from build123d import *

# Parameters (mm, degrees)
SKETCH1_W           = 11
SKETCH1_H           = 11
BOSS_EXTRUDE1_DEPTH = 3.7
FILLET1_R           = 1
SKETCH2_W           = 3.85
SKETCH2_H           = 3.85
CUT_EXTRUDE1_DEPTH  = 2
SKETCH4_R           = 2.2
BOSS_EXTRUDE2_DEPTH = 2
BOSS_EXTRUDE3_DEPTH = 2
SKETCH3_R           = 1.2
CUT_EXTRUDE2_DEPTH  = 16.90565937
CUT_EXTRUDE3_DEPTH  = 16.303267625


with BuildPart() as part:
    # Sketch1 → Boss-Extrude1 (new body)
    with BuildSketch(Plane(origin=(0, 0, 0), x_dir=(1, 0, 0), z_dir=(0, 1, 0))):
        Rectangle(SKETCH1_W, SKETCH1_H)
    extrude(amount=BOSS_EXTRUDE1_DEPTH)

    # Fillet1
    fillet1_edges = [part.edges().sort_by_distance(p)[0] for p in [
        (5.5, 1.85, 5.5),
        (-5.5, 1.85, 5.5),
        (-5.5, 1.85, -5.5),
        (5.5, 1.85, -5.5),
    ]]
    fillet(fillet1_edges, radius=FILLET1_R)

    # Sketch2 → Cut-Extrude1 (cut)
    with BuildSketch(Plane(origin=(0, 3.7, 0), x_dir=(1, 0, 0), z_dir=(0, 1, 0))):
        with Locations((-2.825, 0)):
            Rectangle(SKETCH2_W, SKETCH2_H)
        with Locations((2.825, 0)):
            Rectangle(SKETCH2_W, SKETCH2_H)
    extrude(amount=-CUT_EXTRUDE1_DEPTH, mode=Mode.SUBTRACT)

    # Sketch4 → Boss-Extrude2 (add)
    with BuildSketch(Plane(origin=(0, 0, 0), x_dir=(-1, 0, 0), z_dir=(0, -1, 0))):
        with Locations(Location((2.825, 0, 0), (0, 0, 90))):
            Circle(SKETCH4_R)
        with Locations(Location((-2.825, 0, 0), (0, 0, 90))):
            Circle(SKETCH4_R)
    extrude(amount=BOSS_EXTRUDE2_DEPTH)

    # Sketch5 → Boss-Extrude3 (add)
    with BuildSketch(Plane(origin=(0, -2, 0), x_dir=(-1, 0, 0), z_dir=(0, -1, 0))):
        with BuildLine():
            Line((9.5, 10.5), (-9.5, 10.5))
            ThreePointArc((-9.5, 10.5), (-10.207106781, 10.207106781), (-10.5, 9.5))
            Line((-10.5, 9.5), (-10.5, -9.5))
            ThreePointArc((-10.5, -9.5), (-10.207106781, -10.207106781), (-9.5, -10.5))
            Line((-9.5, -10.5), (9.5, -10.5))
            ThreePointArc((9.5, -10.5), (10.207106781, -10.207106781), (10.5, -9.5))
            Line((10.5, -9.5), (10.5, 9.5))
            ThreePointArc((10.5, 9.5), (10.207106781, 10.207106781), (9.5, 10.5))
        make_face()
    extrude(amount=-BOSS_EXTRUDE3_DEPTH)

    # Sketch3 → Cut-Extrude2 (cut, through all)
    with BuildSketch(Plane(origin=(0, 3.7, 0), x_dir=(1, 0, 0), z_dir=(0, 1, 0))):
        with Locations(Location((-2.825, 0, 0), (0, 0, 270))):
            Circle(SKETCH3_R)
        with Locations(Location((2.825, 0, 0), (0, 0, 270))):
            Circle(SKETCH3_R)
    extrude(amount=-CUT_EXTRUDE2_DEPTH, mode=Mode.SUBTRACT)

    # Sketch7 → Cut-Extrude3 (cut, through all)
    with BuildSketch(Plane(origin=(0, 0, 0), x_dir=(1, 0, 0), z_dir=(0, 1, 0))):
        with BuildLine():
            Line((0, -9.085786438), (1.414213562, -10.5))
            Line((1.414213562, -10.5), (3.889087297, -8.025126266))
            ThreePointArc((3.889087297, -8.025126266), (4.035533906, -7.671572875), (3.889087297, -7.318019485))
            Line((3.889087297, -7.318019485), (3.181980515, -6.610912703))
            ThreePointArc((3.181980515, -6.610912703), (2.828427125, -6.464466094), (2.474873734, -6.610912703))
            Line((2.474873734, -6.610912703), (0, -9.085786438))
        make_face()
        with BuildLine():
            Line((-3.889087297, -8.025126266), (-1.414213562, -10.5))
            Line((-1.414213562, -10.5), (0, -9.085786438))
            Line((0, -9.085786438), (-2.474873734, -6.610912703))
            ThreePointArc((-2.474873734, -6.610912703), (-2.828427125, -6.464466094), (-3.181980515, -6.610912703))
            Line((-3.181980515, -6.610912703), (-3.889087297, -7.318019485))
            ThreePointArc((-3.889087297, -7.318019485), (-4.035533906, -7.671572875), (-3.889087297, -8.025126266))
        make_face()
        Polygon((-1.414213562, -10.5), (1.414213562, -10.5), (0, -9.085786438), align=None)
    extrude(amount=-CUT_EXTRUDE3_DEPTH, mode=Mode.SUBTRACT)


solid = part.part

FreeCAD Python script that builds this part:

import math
import FreeCAD as App
import Part
import Sketcher

V = App.Vector
Q = App.Units.Quantity


def edges_at(feature, points):
    """Names of the edges that pass closest to the given points."""
    edges = feature.Shape.Edges
    near = lambda p: min(range(len(edges)), key=lambda i: edges[i].distToShape(Part.Vertex(*p))[0])
    return sorted({f"Edge{near(p) + 1}" for p in points})


def add_polygon(sketch, points):
    """Adds a closed chain of lines whose ends are joined by coincident constraints."""
    first, n = sketch.GeometryCount, len(points)
    for a, b in zip(points, points[1:] + points[:1]):
        sketch.addGeometry(Part.LineSegment(App.Vector(*a, 0), App.Vector(*b, 0)), False)
    for i in range(n):
        sketch.addConstraint(Sketcher.Constraint("Coincident", first + i, 2, first + (i + 1) % n, 1))

doc = App.newDocument("Part")
params = doc.addObject("Spreadsheet::Sheet", "Params")
for row, (alias, value) in enumerate([
    ("sketch1_width", "11 mm"),
    ("pad1_length", "3.7 mm"),
    ("fillet_radius", "1 mm"),
    ("sketch2_width", "3.85 mm"),
    ("pocket1_length", "2 mm"),
    ("sketch3_diameter", "4.4 mm"),
    ("pad2_length", "2 mm"),
    ("sketch4_radius", "1 mm"),
    ("sketch4_width", "19 mm"),
    ("pad3_length", "2 mm"),
    ("sketch5_diameter", "2.4 mm"),
    ("sketch6_radius", "0.5 mm"),
    ("sketch6_length", "1 mm"),
    ("sketch6_length2", "3.5 mm"),
], start=1):
    params.set(f"A{row}", alias)
    params.set(f"B{row}", "=" + value)
    params.setAlias(f"B{row}", alias)

body = doc.addObject("PartDesign::Body", "Body")

# Sketch on XZ plane
sketch1 = body.newObject("Sketcher::SketchObject", "Sketch")
sketch1.AttachmentSupport = (doc.getObject("XZ_Plane"), [""])
sketch1.MapMode = "FlatFace"
add_polygon(sketch1, [(-6, -6), (-6, 6), (6, 6), (6, -6)])  # lines 0-3
sketch1.addConstraint([
    Sketcher.Constraint("Vertical", 0),
    Sketcher.Constraint("Horizontal", 1),
    Sketcher.Constraint("Vertical", 2),
    Sketcher.Constraint("Horizontal", 3),
    Sketcher.Constraint("Symmetric", 0, 2, 2, 2, -1, 1),
    Sketcher.Constraint("Equal", 3, 0),
    Sketcher.Constraint("DistanceX", 1, 1, 1, 2, Q("11 mm")),
])
sketch1.setExpression("Constraints[10]", "Params.sketch1_width")
pad1 = body.newObject("PartDesign::Pad", "Pad")
pad1.Profile = sketch1
pad1.setExpression("Length", "Params.pad1_length")
pad1.Reversed = True
doc.recompute()

fillet = body.newObject("PartDesign::Fillet", "Fillet")
fillet.Base = (pad1, edges_at(pad1, [
    (5.5, 1.85, 5.5),
    (-5.5, 1.85, 5.5),
    (-5.5, 1.85, -5.5),
    (5.5, 1.85, -5.5),
]))
fillet.setExpression("Radius", "Params.fillet_radius")

# Sketch on XZ plane
sketch2 = body.newObject("Sketcher::SketchObject", "Sketch001")
sketch2.AttachmentSupport = (doc.getObject("XZ_Plane"), [""])
sketch2.MapMode = "FlatFace"
sketch2.AttachmentOffset = App.Placement(V(0, 0, -3.7), App.Rotation())
add_polygon(sketch2, [(-4.8, -1.9), (-4.8, 1.9), (-0.9, 1.9), (-0.9, -1.9)])  # lines 0-3
add_polygon(sketch2, [(0.9, -1.9), (0.9, 1.9), (4.8, 1.9), (4.8, -1.9)])  # lines 4-7
sketch2.addConstraint([
    Sketcher.Constraint("Vertical", 0),
    Sketcher.Constraint("Horizontal", 1),
    Sketcher.Constraint("Vertical", 2),
    Sketcher.Constraint("Horizontal", 3),
    Sketcher.Constraint("Vertical", 4),
    Sketcher.Constraint("Horizontal", 5),
    Sketcher.Constraint("Vertical", 6),
    Sketcher.Constraint("Horizontal", 7),
    Sketcher.Constraint("Symmetric", 2, 2, 4, 2, -1, 1),
    Sketcher.Constraint("Symmetric", 0, 2, 6, 2, -1, 1),
    Sketcher.Constraint("Horizontal", 1, 2, 4, 2),
    Sketcher.Constraint("Equal", 7, 0),
    Sketcher.Constraint("DistanceX", 1, 1, 1, 2, Q("3.85 mm")),
    Sketcher.Constraint("DistanceX", 1, 2, -1, 1, Q("0.9 mm")),
])
sketch2.setExpression("Constraints[20]", "Params.sketch2_width")
pocket1 = body.newObject("PartDesign::Pocket", "Pocket")
pocket1.Profile = sketch2
pocket1.setExpression("Length", "Params.pocket1_length")
pocket1.Reversed = True

# Sketch on XZ plane
sketch3 = body.newObject("Sketcher::SketchObject", "Sketch002")
sketch3.AttachmentSupport = (doc.getObject("XZ_Plane"), [""])
sketch3.MapMode = "FlatFace"
sketch3.addGeometry([
    Part.Circle(V(-2.8, 0, 0), V(0, 0, 1), 2.2),
    Part.Circle(V(2.8, 0, 0), V(0, 0, 1), 2.2),
], False)
sketch3.addConstraint([
    Sketcher.Constraint("Equal", 0, 1),
    Sketcher.Constraint("Symmetric", 0, 3, 1, 3, -1, 1),
    Sketcher.Constraint("PointOnObject", 0, 3, -1),
    Sketcher.Constraint("Diameter", 0, Q("4.4 mm")),
    Sketcher.Constraint("DistanceX", 0, 3, 1, 3, Q("5.65 mm")),
])
sketch3.setExpression("Constraints[3]", "Params.sketch3_diameter")
pad2 = body.newObject("PartDesign::Pad", "Pad001")
pad2.Profile = sketch3
pad2.setExpression("Length", "Params.pad2_length")

# Sketch on XZ plane
sketch4 = body.newObject("Sketcher::SketchObject", "Sketch003")
sketch4.AttachmentSupport = (doc.getObject("XZ_Plane"), [""])
sketch4.MapMode = "FlatFace"
sketch4.AttachmentOffset = App.Placement(V(0, 0, 2), App.Rotation())
sketch4.addGeometry([
    Part.LineSegment(V(-9.5, -10.5, 0), V(9.5, -10.5, 0)),  # 0
    Part.ArcOfCircle(Part.Circle(V(9.5, -9.5, 0), V(0, 0, 1), 1), math.radians(-90), math.radians(0)),  # 1
    Part.LineSegment(V(10.5, -9.5, 0), V(10.5, 9.5, 0)),  # 2
    Part.ArcOfCircle(Part.Circle(V(9.5, 9.5, 0), V(0, 0, 1), 1), math.radians(0), math.radians(90)),  # 3
    Part.LineSegment(V(9.5, 10.5, 0), V(-9.5, 10.5, 0)),  # 4
    Part.ArcOfCircle(Part.Circle(V(-9.5, 9.5, 0), V(0, 0, 1), 1), math.radians(90), math.radians(180)),  # 5
    Part.LineSegment(V(-10.5, 9.5, 0), V(-10.5, -9.5, 0)),  # 6
    Part.ArcOfCircle(Part.Circle(V(-9.5, -9.5, 0), V(0, 0, 1), 1), math.radians(-180), math.radians(-90)),  # 7
], False)
sketch4.addConstraint([
    Sketcher.Constraint("Tangent", 0, 2, 1, 1),
    Sketcher.Constraint("Tangent", 1, 2, 2, 1),
    Sketcher.Constraint("Tangent", 2, 2, 3, 1),
    Sketcher.Constraint("Tangent", 3, 2, 4, 1),
    Sketcher.Constraint("Tangent", 4, 2, 5, 1),
    Sketcher.Constraint("Tangent", 5, 2, 6, 1),
    Sketcher.Constraint("Tangent", 6, 2, 7, 1),
    Sketcher.Constraint("Tangent", 7, 2, 0, 1),
    Sketcher.Constraint("Horizontal", 0),
    Sketcher.Constraint("Vertical", 2),
    Sketcher.Constraint("Horizontal", 4),
    Sketcher.Constraint("Vertical", 6),
    Sketcher.Constraint("Equal", 1, 3),
    Sketcher.Constraint("Equal", 3, 5),
    Sketcher.Constraint("Equal", 5, 7),
    Sketcher.Constraint("Symmetric", 1, 3, 5, 3, -1, 1),
    Sketcher.Constraint("Equal", 4, 2),
    Sketcher.Constraint("Radius", 1, Q("1 mm")),
    Sketcher.Constraint("DistanceX", 0, 1, 0, 2, Q("19 mm")),
])
sketch4.setExpression("Constraints[17]", "Params.sketch4_radius")
sketch4.setExpression("Constraints[18]", "Params.sketch4_width")
pad3 = body.newObject("PartDesign::Pad", "Pad002")
pad3.Profile = sketch4
pad3.setExpression("Length", "Params.pad3_length")
pad3.Reversed = True

# Sketch on XZ plane
sketch5 = body.newObject("Sketcher::SketchObject", "Sketch004")
sketch5.AttachmentSupport = (doc.getObject("XZ_Plane"), [""])
sketch5.MapMode = "FlatFace"
sketch5.AttachmentOffset = App.Placement(V(0, 0, -3.7), App.Rotation())
sketch5.addGeometry([
    Part.Circle(V(-2.8, 0, 0), V(0, 0, 1), 1.2),
    Part.Circle(V(2.8, 0, 0), V(0, 0, 1), 1.2),
], False)
sketch5.addConstraint([
    Sketcher.Constraint("Equal", 0, 1),
    Sketcher.Constraint("Symmetric", 0, 3, 1, 3, -1, 1),
    Sketcher.Constraint("PointOnObject", 0, 3, -1),
    Sketcher.Constraint("Diameter", 0, Q("2.4 mm")),
    Sketcher.Constraint("DistanceX", 0, 3, 1, 3, Q("5.65 mm")),
])
sketch5.setExpression("Constraints[3]", "Params.sketch5_diameter")
pocket2 = body.newObject("PartDesign::Pocket", "Pocket001")
pocket2.Profile = sketch5
pocket2.Type = "ThroughAll"
pocket2.Reversed = True

# Sketch on XZ plane
sketch6 = body.newObject("Sketcher::SketchObject", "Sketch005")
sketch6.AttachmentSupport = (doc.getObject("XZ_Plane"), [""])
sketch6.MapMode = "FlatFace"
sketch6.addGeometry([
    Part.LineSegment(V(1.4, 10.5, 0), V(3.9, 8, 0)),  # 0
    Part.ArcOfCircle(Part.Circle(V(3.5, 7.7, 0), V(0, 0, 1), 0.5), math.radians(-45), math.radians(45)),  # 1
    Part.LineSegment(V(3.9, 7.3, 0), V(3.2, 6.6, 0)),  # 2
    Part.ArcOfCircle(Part.Circle(V(2.8, 7, 0), V(0, 0, 1), 0.5), math.radians(-135), math.radians(-45)),  # 3
    Part.LineSegment(V(2.5, 6.6, 0), V(0, 9.1, 0)),  # 4
    Part.LineSegment(V(0, 9.1, 0), V(-2.5, 6.6, 0)),  # 5
    Part.ArcOfCircle(Part.Circle(V(-2.8, 7, 0), V(0, 0, 1), 0.5), math.radians(-135), math.radians(-45)),  # 6
    Part.LineSegment(V(-3.2, 6.6, 0), V(-3.9, 7.3, 0)),  # 7
    Part.ArcOfCircle(Part.Circle(V(-3.5, 7.7, 0), V(0, 0, 1), 0.5), math.radians(135), math.radians(225)),  # 8
    Part.LineSegment(V(-3.9, 8, 0), V(-1.4, 10.5, 0)),  # 9
    Part.LineSegment(V(-1.4, 10.5, 0), V(1.4, 10.5, 0)),  # 10
], False)
sketch6.addConstraint([
    Sketcher.Constraint("Tangent", 0, 2, 1, 2),
    Sketcher.Constraint("Tangent", 1, 1, 2, 1),
    Sketcher.Constraint("Tangent", 2, 2, 3, 2),
    Sketcher.Constraint("Tangent", 3, 1, 4, 1),
    Sketcher.Constraint("Coincident", 4, 2, 5, 1),
    Sketcher.Constraint("Tangent", 5, 2, 6, 2),
    Sketcher.Constraint("Tangent", 6, 1, 7, 1),
    Sketcher.Constraint("Tangent", 7, 2, 8, 2),
    Sketcher.Constraint("Tangent", 8, 1, 9, 1),
    Sketcher.Constraint("Coincident", 9, 2, 10, 1),
    Sketcher.Constraint("Coincident", 10, 2, 0, 1),
    Sketcher.Constraint("Horizontal", 10),
    Sketcher.Constraint("Equal", 1, 3),
    Sketcher.Constraint("Equal", 3, 6),
    Sketcher.Constraint("Equal", 6, 8),
    Sketcher.Constraint("Symmetric", 3, 3, 6, 3, -2),
    Sketcher.Constraint("Symmetric", 1, 3, 8, 3, -2),
    Sketcher.Constraint("PointOnObject", 4, 2, -2),
    Sketcher.Constraint("Perpendicular", 0, 2),
    Sketcher.Constraint("Perpendicular", 2, 4),
    Sketcher.Constraint("Perpendicular", 4, 5),
    Sketcher.Constraint("Perpendicular", 7, 9),
    Sketcher.Constraint("Equal", 0, 4),
    Sketcher.Constraint("Radius", 1, Q("0.5 mm")),
    Sketcher.Constraint("Distance", 2, Q("1 mm")),
    Sketcher.Constraint("Distance", 0, Q("3.5 mm")),
    Sketcher.Constraint("DistanceY", -1, 1, 9, 2, Q("10.5 mm")),
])
sketch6.setExpression("Constraints[23]", "Params.sketch6_radius")
sketch6.setExpression("Constraints[24]", "Params.sketch6_length")
sketch6.setExpression("Constraints[25]", "Params.sketch6_length2")
pocket3 = body.newObject("PartDesign::Pocket", "Pocket002")
pocket3.Profile = sketch6
pocket3.Type = "ThroughAll"
pocket3.Reversed = True

doc.recompute()
